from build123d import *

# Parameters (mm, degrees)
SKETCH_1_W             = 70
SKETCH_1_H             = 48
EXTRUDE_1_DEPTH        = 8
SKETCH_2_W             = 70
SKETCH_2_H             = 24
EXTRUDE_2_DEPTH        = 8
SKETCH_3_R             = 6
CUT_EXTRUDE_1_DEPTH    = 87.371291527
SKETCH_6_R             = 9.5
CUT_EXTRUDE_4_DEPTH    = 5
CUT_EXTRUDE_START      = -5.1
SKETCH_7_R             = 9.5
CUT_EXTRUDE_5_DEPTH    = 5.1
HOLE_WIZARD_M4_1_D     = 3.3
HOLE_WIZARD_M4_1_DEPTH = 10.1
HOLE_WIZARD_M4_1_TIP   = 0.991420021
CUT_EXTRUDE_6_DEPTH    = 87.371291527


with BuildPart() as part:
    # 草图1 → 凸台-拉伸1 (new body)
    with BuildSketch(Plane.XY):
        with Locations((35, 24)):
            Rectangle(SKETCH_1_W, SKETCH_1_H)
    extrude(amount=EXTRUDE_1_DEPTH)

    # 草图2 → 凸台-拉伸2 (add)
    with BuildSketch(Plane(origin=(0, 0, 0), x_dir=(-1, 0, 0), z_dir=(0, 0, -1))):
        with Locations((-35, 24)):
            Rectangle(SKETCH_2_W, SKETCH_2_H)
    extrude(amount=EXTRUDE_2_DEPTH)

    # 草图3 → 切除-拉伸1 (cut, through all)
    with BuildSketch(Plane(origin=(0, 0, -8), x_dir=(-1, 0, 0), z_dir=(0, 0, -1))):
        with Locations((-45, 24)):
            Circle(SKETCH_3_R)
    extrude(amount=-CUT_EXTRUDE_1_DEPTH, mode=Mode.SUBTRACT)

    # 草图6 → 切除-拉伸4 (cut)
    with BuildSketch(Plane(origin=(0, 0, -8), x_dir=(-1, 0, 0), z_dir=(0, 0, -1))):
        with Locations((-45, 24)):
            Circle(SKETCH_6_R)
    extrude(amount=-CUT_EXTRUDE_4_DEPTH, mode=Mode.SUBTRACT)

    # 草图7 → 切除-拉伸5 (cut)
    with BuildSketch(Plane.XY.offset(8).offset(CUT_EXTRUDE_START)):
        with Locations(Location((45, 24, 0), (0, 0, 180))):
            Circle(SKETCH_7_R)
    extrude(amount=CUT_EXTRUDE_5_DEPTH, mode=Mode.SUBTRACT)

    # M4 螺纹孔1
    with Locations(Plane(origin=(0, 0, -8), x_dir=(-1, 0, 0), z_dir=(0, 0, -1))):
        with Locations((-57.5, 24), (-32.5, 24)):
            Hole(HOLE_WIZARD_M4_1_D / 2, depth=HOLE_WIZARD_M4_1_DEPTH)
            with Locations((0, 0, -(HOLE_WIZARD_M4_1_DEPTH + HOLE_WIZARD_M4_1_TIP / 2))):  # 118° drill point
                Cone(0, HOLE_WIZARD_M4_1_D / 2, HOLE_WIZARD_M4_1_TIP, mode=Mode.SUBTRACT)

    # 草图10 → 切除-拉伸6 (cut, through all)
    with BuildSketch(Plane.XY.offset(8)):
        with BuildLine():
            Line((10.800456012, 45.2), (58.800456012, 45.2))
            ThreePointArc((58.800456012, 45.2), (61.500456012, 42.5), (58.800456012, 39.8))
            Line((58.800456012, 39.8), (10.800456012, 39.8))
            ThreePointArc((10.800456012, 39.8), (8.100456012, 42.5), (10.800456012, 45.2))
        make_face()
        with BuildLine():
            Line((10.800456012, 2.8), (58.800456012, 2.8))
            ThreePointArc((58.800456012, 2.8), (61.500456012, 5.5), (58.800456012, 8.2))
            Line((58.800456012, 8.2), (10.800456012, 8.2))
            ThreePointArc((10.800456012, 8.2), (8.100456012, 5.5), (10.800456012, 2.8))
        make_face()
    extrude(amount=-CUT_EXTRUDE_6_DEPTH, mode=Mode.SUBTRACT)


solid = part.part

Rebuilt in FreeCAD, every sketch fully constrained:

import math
import FreeCAD as App
import Part
import Sketcher

V = App.Vector
Q = App.Units.Quantity

doc = App.newDocument("Part")
body = doc.addObject("PartDesign::Body", "Body")

# Sketch on XY plane
sketch1 = doc.addObject("Sketcher::SketchObject", "Sketch")
body.addObject(sketch1)
sketch1.AttachmentSupport = (doc.XY_Plane, [""])
sketch1.MapMode = "FlatFace"
sketch1.addGeometry(Part.LineSegment(V(0, 48, 0), V(0, 0, 0)), False)
sketch1.addGeometry(Part.LineSegment(V(0, 0, 0), V(70, 0, 0)), False)
sketch1.addGeometry(Part.LineSegment(V(70, 0, 0), V(70, 48, 0)), False)
sketch1.addGeometry(Part.LineSegment(V(70, 48, 0), V(0, 48, 0)), False)
sketch1.addConstraint(Sketcher.Constraint("Coincident", 0, 2, 1, 1))
sketch1.addConstraint(Sketcher.Constraint("Coincident", 1, 2, 2, 1))
sketch1.addConstraint(Sketcher.Constraint("Coincident", 2, 2, 3, 1))
sketch1.addConstraint(Sketcher.Constraint("Coincident", 3, 2, 0, 1))
sketch1.addConstraint(Sketcher.Constraint("Vertical", 0))
sketch1.addConstraint(Sketcher.Constraint("Horizontal", 1))
sketch1.addConstraint(Sketcher.Constraint("Vertical", 2))
sketch1.addConstraint(Sketcher.Constraint("Horizontal", 3))
sketch1.addConstraint(Sketcher.Constraint("Coincident", 0, 2, -1, 1))
sketch1.addConstraint(Sketcher.Constraint("DistanceX", 1, 1, 1, 2, Q("70 mm")))
sketch1.addConstraint(Sketcher.Constraint("DistanceY", 0, 2, 0, 1, Q("48 mm")))
pad1 = doc.addObject("PartDesign::Pad", "Pad")
body.addObject(pad1)
pad1.Profile = sketch1
pad1.Length = 8

# Sketch on XY plane
sketch2 = doc.addObject("Sketcher::SketchObject", "Sketch001")
body.addObject(sketch2)
sketch2.AttachmentSupport = (doc.XY_Plane, [""])
sketch2.MapMode = "FlatFace"
sketch2.addGeometry(Part.LineSegment(V(70, 36, 0), V(70, 12, 0)), False)
sketch2.addGeometry(Part.LineSegment(V(70, 12, 0), V(0, 12, 0)), False)
sketch2.addGeometry(Part.LineSegment(V(0, 12, 0), V(0, 36, 0)), False)
sketch2.addGeometry(Part.LineSegment(V(0, 36, 0), V(70, 36, 0)), False)
sketch2.addConstraint(Sketcher.Constraint("Coincident", 0, 2, 1, 1))
sketch2.addConstraint(Sketcher.Constraint("Coincident", 1, 2, 2, 1))
sketch2.addConstraint(Sketcher.Constraint("Coincident", 2, 2, 3, 1))
sketch2.addConstraint(Sketcher.Constraint("Coincident", 3, 2, 0, 1))
sketch2.addConstraint(Sketcher.Constraint("Vertical", 0))
sketch2.addConstraint(Sketcher.Constraint("Horizontal", 1))
sketch2.addConstraint(Sketcher.Constraint("Vertical", 2))
sketch2.addConstraint(Sketcher.Constraint("Horizontal", 3))
sketch2.addConstraint(Sketcher.Constraint("PointOnObject", 1, 2, -2))
sketch2.addConstraint(Sketcher.Constraint("DistanceX", 1, 2, 1, 1, Q("70 mm")))
sketch2.addConstraint(Sketcher.Constraint("DistanceY", 0, 2, 0, 1, Q("24 mm")))
sketch2.addConstraint(Sketcher.Constraint("DistanceY", -1, 1, 0, 2, Q("12 mm")))
pad2 = doc.addObject("PartDesign::Pad", "Pad001")
body.addObject(pad2)
pad2.Profile = sketch2
pad2.Length = 8
pad2.Reversed = True

# Sketch on XY plane
sketch3 = doc.addObject("Sketcher::SketchObject", "Sketch002")
body.addObject(sketch3)
sketch3.AttachmentSupport = (doc.XY_Plane, [""])
sketch3.MapMode = "FlatFace"
sketch3.AttachmentOffset = App.Placement(V(0, 0, -8), App.Rotation())
sketch3.addGeometry(Part.Circle(V(45, 24, 0), V(0, 0, 1), 6), False)
sketch3.addConstraint(Sketcher.Constraint("Diameter", 0, Q("12 mm")))
sketch3.addConstraint(Sketcher.Constraint("DistanceX", -1, 1, 0, 3, Q("45 mm")))
sketch3.addConstraint(Sketcher.Constraint("DistanceY", -1, 1, 0, 3, Q("24 mm")))
pocket1 = doc.addObject("PartDesign::Pocket", "Pocket")
body.addObject(pocket1)
pocket1.Profile = sketch3
pocket1.Type = "ThroughAll"
pocket1.Reversed = True

# Sketch on XY plane
sketch4 = doc.addObject("Sketcher::SketchObject", "Sketch003")
body.addObject(sketch4)
sketch4.AttachmentSupport = (doc.XY_Plane, [""])
sketch4.MapMode = "FlatFace"
sketch4.AttachmentOffset = App.Placement(V(0, 0, -8), App.Rotation())
sketch4.addGeometry(Part.Circle(V(45, 24, 0), V(0, 0, 1), 9.5), False)
sketch4.addConstraint(Sketcher.Constraint("Diameter", 0, Q("19 mm")))
sketch4.addConstraint(Sketcher.Constraint("DistanceX", -1, 1, 0, 3, Q("45 mm")))
sketch4.addConstraint(Sketcher.Constraint("DistanceY", -1, 1, 0, 3, Q("24 mm")))
pocket2 = doc.addObject("PartDesign::Pocket", "Pocket001")
body.addObject(pocket2)
pocket2.Profile = sketch4
pocket2.Length = 5
pocket2.Reversed = True

# Sketch on XY plane
sketch5 = doc.addObject("Sketcher::SketchObject", "Sketch004")
body.addObject(sketch5)
sketch5.AttachmentSupport = (doc.XY_Plane, [""])
sketch5.MapMode = "FlatFace"
sketch5.AttachmentOffset = App.Placement(V(0, 0, 2.9), App.Rotation())
sketch5.addGeometry(Part.Circle(V(45, 24, 0), V(0, 0, 1), 9.5), False)
sketch5.addConstraint(Sketcher.Constraint("Diameter", 0, Q("19 mm")))
sketch5.addConstraint(Sketcher.Constraint("DistanceX", -1, 1, 0, 3, Q("45 mm")))
sketch5.addConstraint(Sketcher.Constraint("DistanceY", -1, 1, 0, 3, Q("24 mm")))
pocket3 = doc.addObject("PartDesign::Pocket", "Pocket002")
body.addObject(pocket3)
pocket3.Profile = sketch5
pocket3.Length = 5.1
pocket3.Reversed = True

# Sketch on XY plane
sketch6 = doc.addObject("Sketcher::SketchObject", "Sketch005")
body.addObject(sketch6)
sketch6.AttachmentSupport = (doc.XY_Plane, [""])
sketch6.MapMode = "FlatFace"
sketch6.AttachmentOffset = App.Placement(V(0, 0, -8), App.Rotation())
sketch6.addGeometry(Part.Circle(V(57.5, 24, 0), V(0, 0, 1), 1.65), False)
sketch6.addGeometry(Part.Circle(V(32.5, 24, 0), V(0, 0, 1), 1.65), False)
sketch6.addConstraint(Sketcher.Constraint("Equal", 0, 1))
sketch6.addConstraint(Sketcher.Constraint("Horizontal", 0, 3, 1, 3))
sketch6.addConstraint(Sketcher.Constraint("Diameter", 0, Q("3.3 mm")))
sketch6.addConstraint(Sketcher.Constraint("DistanceY", -1, 1, 0, 3, Q("24 mm")))
sketch6.addConstraint(Sketcher.Constraint("DistanceX", 1, 3, 0, 3, Q("25 mm")))
sketch6.addConstraint(Sketcher.Constraint("DistanceX", -1, 1, 0, 3, Q("57.5 mm")))
doc.recompute()
hole = doc.addObject("PartDesign::Hole", "Hole")
body.addObject(hole)
hole.Profile = sketch6
hole.ThreadType = "None"
hole.Diameter = 3.3
hole.DepthType = "Dimension"
hole.Depth = 10.1
hole.DrillPoint = "Angled"
hole.DrillPointAngle = 118
hole.Reversed = True

# Sketch on XY plane
sketch7 = doc.addObject("Sketcher::SketchObject", "Sketch006")
body.addObject(sketch7)
sketch7.AttachmentSupport = (doc.XY_Plane, [""])
sketch7.MapMode = "FlatFace"
sketch7.AttachmentOffset = App.Placement(V(0, 0, 8), App.Rotation())
sketch7.addGeometry(Part.LineSegment(V(58.800456, 45.2, 0), V(10.800456, 45.2, 0)), False)
sketch7.addGeometry(Part.ArcOfCircle(Part.Circle(V(10.800456, 42.5, 0), V(0, 0, 1), 2.7), math.radians(90), math.radians(270)), False)
sketch7.addGeometry(Part.LineSegment(V(10.800456, 39.8, 0), V(58.800456, 39.8, 0)), False)
sketch7.addGeometry(Part.ArcOfCircle(Part.Circle(V(58.800456, 42.5, 0), V(0, 0, 1), 2.7), math.radians(-90), math.radians(90)), False)
sketch7.addGeometry(Part.LineSegment(V(10.800456, 2.8, 0), V(58.800456, 2.8, 0)), False)
sketch7.addGeometry(Part.ArcOfCircle(Part.Circle(V(58.800456, 5.5, 0), V(0, 0, 1), 2.7), math.radians(-90), math.radians(90)), False)
sketch7.addGeometry(Part.LineSegment(V(58.800456, 8.2, 0), V(10.800456, 8.2, 0)), False)
sketch7.addGeometry(Part.ArcOfCircle(Part.Circle(V(10.800456, 5.5, 0), V(0, 0, 1), 2.7), math.radians(90), math.radians(270)), False)
sketch7.addConstraint(Sketcher.Constraint("Tangent", 0, 2, 1, 1))
sketch7.addConstraint(Sketcher.Constraint("Tangent", 1, 2, 2, 1))
sketch7.addConstraint(Sketcher.Constraint("Tangent", 2, 2, 3, 1))
sketch7.addConstraint(Sketcher.Constraint("Tangent", 3, 2, 0, 1))
sketch7.addConstraint(Sketcher.Constraint("Tangent", 4, 2, 5, 1))
sketch7.addConstraint(Sketcher.Constraint("Tangent", 5, 2, 6, 1))
sketch7.addConstraint(Sketcher.Constraint("Tangent", 6, 2, 7, 1))
sketch7.addConstraint(Sketcher.Constraint("Tangent", 7, 2, 4, 1))
sketch7.addConstraint(Sketcher.Constraint("Horizontal", 0))
sketch7.addConstraint(Sketcher.Constraint("Horizontal", 2))
sketch7.addConstraint(Sketcher.Constraint("Horizontal", 4))
sketch7.addConstraint(Sketcher.Constraint("Horizontal", 6))
sketch7.addConstraint(Sketcher.Constraint("Equal", 3, 5))
sketch7.addConstraint(Sketcher.Constraint("Vertical", 3, 3, 5, 3))
sketch7.addConstraint(Sketcher.Constraint("Vertical", 1, 3, 7, 3))
sketch7.addConstraint(Sketcher.Constraint("Radius", 1, Q("2.7 mm")))
sketch7.addConstraint(Sketcher.Constraint("DistanceX", 0, 2, 0, 1, Q("48 mm")))
sketch7.addConstraint(Sketcher.Constraint("DistanceY", 5, 3, 3, 3, Q("37 mm")))
sketch7.addConstraint(Sketcher.Constraint("DistanceY", -1, 1, 1, 3, Q("42.5 mm")))
sketch7.addConstraint(Sketcher.Constraint("DistanceX", -1, 1, 1, 3, Q("10.800456 mm")))
pocket4 = doc.addObject("PartDesign::Pocket", "Pocket003")
body.addObject(pocket4)
pocket4.Profile = sketch7
pocket4.Type = "ThroughAll"

doc.recompute()
